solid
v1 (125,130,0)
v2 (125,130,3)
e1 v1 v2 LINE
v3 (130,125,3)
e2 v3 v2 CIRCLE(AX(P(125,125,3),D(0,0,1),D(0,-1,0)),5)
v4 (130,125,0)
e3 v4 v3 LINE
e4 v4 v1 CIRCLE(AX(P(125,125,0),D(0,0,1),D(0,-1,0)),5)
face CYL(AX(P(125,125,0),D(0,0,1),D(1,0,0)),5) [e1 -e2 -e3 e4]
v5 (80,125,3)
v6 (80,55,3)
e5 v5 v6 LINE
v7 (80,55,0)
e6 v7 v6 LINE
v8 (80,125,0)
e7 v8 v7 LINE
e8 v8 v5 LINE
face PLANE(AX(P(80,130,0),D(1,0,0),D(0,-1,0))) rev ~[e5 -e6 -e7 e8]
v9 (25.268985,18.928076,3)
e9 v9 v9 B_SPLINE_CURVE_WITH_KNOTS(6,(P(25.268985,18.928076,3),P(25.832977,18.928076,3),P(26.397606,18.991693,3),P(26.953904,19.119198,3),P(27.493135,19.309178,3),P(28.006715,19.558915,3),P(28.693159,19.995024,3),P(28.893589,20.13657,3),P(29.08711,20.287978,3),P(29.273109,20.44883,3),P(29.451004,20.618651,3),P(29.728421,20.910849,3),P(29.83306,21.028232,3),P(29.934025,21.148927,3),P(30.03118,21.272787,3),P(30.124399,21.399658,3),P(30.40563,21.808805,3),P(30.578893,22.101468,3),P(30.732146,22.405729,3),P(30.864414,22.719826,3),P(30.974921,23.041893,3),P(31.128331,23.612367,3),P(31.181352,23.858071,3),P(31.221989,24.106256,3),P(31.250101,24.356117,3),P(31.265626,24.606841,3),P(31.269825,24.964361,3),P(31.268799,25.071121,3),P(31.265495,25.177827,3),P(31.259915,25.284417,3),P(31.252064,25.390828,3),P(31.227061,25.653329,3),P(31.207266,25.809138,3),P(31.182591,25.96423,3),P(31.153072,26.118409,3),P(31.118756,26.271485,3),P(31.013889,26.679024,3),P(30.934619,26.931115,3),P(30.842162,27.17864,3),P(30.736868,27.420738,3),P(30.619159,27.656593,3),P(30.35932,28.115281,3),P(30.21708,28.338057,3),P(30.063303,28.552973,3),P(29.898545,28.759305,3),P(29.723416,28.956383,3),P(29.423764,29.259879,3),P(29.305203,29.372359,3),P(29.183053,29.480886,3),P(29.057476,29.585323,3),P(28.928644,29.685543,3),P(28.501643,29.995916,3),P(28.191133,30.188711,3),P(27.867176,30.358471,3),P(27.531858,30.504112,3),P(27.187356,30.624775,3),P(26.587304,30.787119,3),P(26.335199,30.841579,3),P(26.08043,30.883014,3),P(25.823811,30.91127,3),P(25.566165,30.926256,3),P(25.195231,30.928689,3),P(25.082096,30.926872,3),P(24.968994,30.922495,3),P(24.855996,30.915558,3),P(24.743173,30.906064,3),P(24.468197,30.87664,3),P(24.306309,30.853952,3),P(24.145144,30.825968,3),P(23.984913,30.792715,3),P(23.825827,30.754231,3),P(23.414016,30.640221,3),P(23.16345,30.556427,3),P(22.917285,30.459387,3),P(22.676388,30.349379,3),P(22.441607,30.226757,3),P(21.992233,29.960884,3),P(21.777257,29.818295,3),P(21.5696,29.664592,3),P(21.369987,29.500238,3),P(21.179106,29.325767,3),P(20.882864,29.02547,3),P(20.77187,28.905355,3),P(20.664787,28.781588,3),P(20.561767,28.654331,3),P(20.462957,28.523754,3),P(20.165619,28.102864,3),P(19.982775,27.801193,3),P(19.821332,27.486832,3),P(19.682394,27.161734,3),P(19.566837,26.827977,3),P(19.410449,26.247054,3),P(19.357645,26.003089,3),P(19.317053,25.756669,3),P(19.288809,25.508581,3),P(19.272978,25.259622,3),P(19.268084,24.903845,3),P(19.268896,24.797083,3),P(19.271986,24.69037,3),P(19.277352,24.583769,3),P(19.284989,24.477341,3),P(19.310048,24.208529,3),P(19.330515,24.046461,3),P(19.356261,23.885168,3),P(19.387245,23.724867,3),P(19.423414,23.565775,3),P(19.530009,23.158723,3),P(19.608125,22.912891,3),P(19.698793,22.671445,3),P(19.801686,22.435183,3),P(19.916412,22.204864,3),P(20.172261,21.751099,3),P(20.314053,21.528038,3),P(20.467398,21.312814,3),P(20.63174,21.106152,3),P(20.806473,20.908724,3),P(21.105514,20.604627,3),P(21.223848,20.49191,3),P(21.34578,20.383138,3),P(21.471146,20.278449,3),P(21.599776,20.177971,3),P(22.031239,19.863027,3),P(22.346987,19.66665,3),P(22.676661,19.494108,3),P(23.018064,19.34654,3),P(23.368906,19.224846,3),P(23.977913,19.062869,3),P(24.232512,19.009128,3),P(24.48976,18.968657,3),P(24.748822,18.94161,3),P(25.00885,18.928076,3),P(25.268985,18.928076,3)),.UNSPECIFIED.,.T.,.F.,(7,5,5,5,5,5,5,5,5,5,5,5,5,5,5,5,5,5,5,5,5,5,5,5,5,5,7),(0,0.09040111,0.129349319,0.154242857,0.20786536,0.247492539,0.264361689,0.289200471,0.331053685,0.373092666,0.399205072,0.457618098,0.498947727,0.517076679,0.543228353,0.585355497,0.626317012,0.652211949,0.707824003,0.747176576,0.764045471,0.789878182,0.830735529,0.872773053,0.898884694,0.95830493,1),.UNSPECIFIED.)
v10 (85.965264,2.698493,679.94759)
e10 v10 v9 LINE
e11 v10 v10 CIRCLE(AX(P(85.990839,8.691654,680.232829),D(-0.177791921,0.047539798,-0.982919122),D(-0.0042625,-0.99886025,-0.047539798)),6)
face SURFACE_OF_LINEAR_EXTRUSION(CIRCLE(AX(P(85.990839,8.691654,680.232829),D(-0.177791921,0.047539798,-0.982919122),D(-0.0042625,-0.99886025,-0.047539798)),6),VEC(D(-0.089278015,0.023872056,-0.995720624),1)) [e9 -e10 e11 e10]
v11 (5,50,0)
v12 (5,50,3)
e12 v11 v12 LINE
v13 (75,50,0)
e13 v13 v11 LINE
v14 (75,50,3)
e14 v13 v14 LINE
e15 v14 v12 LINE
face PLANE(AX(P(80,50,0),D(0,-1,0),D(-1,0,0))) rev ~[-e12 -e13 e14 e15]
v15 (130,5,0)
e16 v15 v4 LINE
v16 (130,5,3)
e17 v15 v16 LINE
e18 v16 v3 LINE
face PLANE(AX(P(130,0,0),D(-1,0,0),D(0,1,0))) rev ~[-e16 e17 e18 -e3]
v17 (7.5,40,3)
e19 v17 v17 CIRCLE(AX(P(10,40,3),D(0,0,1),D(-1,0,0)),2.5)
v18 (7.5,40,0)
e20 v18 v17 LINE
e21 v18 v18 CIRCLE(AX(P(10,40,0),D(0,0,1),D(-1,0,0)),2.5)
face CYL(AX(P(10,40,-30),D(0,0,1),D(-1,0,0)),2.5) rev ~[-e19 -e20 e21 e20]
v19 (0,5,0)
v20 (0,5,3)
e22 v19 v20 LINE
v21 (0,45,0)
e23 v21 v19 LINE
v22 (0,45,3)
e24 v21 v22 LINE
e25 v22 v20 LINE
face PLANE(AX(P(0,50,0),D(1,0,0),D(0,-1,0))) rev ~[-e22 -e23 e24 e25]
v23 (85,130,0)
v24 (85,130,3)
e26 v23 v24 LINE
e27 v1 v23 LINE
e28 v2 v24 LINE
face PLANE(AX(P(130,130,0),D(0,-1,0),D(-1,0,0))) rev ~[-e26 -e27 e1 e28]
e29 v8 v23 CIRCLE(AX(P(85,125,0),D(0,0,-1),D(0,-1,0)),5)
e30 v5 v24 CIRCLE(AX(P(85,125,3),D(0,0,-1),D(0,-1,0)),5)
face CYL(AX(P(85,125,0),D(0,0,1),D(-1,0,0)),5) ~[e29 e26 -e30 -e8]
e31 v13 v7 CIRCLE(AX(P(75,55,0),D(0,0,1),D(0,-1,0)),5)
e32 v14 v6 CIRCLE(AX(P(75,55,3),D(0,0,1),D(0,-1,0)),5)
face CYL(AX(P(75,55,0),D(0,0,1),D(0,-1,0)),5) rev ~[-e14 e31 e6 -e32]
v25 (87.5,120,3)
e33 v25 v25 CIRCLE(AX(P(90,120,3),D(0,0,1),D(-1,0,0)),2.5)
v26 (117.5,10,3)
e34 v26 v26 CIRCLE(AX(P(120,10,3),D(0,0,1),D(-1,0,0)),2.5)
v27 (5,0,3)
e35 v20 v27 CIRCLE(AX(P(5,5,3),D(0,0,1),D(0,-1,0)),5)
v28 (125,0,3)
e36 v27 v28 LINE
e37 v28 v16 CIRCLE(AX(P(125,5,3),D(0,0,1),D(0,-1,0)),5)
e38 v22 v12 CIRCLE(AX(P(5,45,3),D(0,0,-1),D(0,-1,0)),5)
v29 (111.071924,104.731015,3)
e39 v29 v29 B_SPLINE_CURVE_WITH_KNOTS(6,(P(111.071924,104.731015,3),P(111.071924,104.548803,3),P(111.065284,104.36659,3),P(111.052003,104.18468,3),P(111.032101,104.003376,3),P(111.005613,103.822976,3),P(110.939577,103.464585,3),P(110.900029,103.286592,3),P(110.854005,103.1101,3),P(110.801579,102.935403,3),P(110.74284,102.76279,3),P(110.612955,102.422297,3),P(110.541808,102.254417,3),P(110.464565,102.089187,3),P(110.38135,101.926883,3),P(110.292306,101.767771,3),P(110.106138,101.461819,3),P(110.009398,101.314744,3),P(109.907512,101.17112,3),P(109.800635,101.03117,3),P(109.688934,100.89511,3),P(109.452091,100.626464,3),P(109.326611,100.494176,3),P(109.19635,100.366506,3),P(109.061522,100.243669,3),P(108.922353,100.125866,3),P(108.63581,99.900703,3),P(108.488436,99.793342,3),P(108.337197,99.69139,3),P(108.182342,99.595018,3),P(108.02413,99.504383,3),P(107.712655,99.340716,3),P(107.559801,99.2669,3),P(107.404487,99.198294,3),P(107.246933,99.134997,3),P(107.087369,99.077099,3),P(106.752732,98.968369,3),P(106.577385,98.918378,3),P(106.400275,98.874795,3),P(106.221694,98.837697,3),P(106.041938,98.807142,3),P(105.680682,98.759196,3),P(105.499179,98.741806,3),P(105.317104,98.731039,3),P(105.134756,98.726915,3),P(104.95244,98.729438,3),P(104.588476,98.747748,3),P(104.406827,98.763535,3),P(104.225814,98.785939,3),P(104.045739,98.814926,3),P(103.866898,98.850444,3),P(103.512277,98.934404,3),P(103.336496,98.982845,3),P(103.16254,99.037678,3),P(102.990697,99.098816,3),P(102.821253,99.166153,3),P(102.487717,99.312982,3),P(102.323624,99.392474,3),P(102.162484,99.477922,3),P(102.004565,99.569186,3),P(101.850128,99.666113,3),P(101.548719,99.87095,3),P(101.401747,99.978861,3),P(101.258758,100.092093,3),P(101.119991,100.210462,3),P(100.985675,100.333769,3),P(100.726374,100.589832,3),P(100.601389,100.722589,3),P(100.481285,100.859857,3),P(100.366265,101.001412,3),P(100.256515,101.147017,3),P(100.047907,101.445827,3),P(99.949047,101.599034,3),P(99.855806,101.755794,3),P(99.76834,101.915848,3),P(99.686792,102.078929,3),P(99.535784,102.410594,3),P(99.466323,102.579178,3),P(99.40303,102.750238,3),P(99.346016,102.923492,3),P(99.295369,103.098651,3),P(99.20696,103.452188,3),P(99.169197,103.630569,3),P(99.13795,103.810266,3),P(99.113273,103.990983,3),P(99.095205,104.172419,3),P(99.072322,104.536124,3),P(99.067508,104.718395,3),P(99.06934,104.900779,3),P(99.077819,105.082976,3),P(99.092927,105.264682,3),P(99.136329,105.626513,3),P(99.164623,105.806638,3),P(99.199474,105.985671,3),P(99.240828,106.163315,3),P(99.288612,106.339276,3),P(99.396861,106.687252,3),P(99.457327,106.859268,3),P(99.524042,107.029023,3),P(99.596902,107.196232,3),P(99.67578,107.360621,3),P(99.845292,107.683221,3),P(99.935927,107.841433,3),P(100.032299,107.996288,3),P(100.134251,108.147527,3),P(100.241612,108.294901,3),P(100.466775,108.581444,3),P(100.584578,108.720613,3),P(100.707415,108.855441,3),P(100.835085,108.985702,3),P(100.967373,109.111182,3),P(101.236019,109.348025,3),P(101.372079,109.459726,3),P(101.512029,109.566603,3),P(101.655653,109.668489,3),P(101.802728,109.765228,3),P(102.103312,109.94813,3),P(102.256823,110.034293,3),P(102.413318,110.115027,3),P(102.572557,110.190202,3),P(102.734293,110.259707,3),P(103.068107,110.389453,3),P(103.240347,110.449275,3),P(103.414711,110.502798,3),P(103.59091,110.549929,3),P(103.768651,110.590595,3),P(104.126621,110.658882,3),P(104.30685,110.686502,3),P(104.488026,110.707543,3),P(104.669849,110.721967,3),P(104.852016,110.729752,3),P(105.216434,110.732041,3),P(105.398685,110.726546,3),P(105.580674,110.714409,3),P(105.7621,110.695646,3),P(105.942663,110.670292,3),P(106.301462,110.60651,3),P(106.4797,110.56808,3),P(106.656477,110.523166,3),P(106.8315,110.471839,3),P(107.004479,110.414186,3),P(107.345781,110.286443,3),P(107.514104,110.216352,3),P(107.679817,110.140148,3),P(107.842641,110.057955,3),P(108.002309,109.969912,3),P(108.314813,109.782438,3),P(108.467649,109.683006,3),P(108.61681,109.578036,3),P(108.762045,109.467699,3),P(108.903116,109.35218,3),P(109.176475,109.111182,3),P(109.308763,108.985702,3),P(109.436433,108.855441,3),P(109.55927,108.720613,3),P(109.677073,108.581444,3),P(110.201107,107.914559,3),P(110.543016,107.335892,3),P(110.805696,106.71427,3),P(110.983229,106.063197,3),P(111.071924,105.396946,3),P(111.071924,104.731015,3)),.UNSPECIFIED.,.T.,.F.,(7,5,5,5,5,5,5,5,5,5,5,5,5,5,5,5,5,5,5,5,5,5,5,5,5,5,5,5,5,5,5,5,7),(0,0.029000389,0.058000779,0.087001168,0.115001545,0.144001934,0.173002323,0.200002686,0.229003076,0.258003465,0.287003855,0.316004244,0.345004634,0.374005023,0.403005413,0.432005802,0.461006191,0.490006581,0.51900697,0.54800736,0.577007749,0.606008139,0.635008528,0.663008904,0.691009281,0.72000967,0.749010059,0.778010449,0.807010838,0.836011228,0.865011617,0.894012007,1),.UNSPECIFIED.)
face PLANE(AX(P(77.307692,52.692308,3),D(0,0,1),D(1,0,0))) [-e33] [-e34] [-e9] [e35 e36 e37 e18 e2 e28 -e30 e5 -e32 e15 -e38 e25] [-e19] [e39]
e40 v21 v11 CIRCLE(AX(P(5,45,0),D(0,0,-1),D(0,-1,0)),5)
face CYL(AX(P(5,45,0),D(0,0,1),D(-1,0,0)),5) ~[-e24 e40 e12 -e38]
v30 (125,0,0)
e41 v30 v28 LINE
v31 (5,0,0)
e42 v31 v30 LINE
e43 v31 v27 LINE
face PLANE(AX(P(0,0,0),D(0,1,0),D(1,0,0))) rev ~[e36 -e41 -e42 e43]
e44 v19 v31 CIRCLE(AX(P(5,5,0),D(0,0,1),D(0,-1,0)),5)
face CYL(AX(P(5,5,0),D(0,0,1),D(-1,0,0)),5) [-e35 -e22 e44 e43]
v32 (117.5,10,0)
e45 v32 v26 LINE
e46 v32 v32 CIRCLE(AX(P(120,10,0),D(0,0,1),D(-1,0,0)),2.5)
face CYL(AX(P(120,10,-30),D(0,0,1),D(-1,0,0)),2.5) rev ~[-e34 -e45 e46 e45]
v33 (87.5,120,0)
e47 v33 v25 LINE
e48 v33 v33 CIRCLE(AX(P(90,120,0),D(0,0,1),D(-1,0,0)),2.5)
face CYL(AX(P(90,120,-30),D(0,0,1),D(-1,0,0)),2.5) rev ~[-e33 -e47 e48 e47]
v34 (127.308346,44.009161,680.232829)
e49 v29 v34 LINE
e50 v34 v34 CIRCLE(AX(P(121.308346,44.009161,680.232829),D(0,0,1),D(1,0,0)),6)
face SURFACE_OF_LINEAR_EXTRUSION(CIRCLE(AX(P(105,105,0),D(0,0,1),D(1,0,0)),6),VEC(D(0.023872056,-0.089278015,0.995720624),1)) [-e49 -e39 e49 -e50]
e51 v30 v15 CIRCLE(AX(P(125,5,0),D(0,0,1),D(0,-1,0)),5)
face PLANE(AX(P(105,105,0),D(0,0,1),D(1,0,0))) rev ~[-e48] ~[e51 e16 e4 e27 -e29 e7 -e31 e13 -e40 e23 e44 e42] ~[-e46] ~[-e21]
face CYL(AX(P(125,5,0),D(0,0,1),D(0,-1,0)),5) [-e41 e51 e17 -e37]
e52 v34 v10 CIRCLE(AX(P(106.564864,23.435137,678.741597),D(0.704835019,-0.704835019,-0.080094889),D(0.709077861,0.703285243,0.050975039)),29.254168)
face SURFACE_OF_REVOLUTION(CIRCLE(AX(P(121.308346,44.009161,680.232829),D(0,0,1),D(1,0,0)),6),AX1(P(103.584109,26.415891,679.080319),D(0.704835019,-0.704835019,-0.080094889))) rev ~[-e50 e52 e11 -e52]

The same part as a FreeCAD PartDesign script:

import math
import FreeCAD as App
import Part
import Sketcher


def edges_at(feature, points):
    """Names of the edges that pass closest to the given points."""
    edges = feature.Shape.Edges
    near = lambda p: min(range(len(edges)), key=lambda i: edges[i].distToShape(Part.Vertex(*p))[0])
    return sorted({f"Edge{near(p) + 1}" for p in points})


def add_polygon(sketch, points):
    """Adds a closed chain of lines whose ends are joined by coincident constraints."""
    first, n = sketch.GeometryCount, len(points)
    for a, b in zip(points, points[1:] + points[:1]):
        sketch.addGeometry(Part.LineSegment(App.Vector(*a, 0), App.Vector(*b, 0)), False)
    for i in range(n):
        sketch.addConstraint(Sketcher.Constraint("Coincident", first + i, 2, first + (i + 1) % n, 1))

doc = App.newDocument("Part")
params = doc.addObject("Spreadsheet::Sheet", "Params")
for row, (alias, value) in enumerate([
    ("sketch1_width", "130 mm"),
    ("sketch1_width2", "50 mm"),
    ("pad1_length", "3 mm"),
    ("sketch2_diameter", "12 mm"),
    ("sketch3_radius", "25 mm"),
    ("sketch4_width", "130 mm"),
    ("sketch4_height", "10 mm"),
    ("sketch5_diameter", "5 mm"),
    ("hole_diameter", "5 mm"),
    ("hole_depth", "30 mm"),
    ("fillet_radius", "5 mm"),
], start=1):
    params.set(f"A{row}", alias)
    params.set(f"B{row}", "=" + value)
    params.setAlias(f"B{row}", alias)

body = doc.addObject("PartDesign::Body", "Body")

sketch1 = doc.addObject("Sketcher::SketchObject", "Sketch")
body.addObject(sketch1)
sketch1.AttachmentSupport = (doc.XY_Plane, [""])
sketch1.MapMode = "FlatFace"
add_polygon(sketch1, [(0, 50), (0, 0), (130, 0), (130, 130), (80, 130), (80, 50)])
sketch1.addConstraint([
    Sketcher.Constraint("Vertical", 0),
    Sketcher.Constraint("Horizontal", 1),
    Sketcher.Constraint("Vertical", 2),
    Sketcher.Constraint("Horizontal", 3),
    Sketcher.Constraint("Vertical", 4),
    Sketcher.Constraint("Horizontal", 5),
    Sketcher.Constraint("Coincident", 0, 2, -1, 1),
    Sketcher.Constraint("Equal", 3, 0),
    Sketcher.Constraint("Equal", 1, 2),
    Sketcher.Constraint("DistanceX", 1, 1, 1, 2, 130.0),
    Sketcher.Constraint("DistanceX", 3, 2, 3, 1, 50.0),
])
sketch1.setExpression("Constraints[15]", "Params.sketch1_width")
sketch1.setExpression("Constraints[16]", "Params.sketch1_width2")
pad1 = doc.addObject("PartDesign::Pad", "Pad")
body.addObject(pad1)
pad1.Profile = sketch1
pad1.setExpression("Length", "Params.pad1_length")

sketch2 = doc.addObject("Sketcher::SketchObject", "Sketch001")
body.addObject(sketch2)
sketch2.AttachmentSupport = (doc.XY_Plane, [""])
sketch2.MapMode = "FlatFace"
sketch2.addGeometry(Part.Circle(App.Vector(105, 105, 0), App.Vector(0, 0, 1), 6), False)
sketch2.addConstraint([
    Sketcher.Constraint("Diameter", 0, 12.0),
    Sketcher.Constraint("DistanceX", -1, 1, 0, 3, 105.0),
    Sketcher.Constraint("DistanceY", -1, 1, 0, 3, 105.0),
])
sketch2.setExpression("Constraints[0]", "Params.sketch2_diameter")

sketch3 = doc.addObject("Sketcher::SketchObject", "Sketch002")
body.addObject(sketch3)
sketch3.Placement = App.Placement(App.Vector(0, 0, 0), App.Rotation(App.Vector(-0.707106781, -0.707106781, 0), App.Vector(0.056635639, -0.056635639, 0.996787243), App.Vector(-0.704835019, 0.704835019, 0.080094889), "ZXY"))
sketch3.addGeometry([
    Part.LineSegment(App.Vector(-148.492424, 0, 0), App.Vector(-116.89713, 682.425295, 0)),
    Part.ArcOfCircle(Part.Circle(App.Vector(-91.923882, 681.26907, 0), App.Vector(0, 0, 1), 25), math.radians(2.650818), math.radians(177.349182)),
    Part.LineSegment(App.Vector(-66.950633, 682.425295, 0), App.Vector(-35.355339, 0, 0)),
], False)
sketch3.addConstraint([
    Sketcher.Constraint("Tangent", 0, 2, 1, 2),
    Sketcher.Constraint("Tangent", 1, 1, 2, 1),
    Sketcher.Constraint("PointOnObject", 0, 1, -1),
    Sketcher.Constraint("PointOnObject", 2, 2, -1),
    Sketcher.Constraint("Horizontal", 0, 2, 1, 1),
    Sketcher.Constraint("Radius", 1, 25.0),
    Sketcher.Constraint("Distance", 0, 683.156311),
    Sketcher.Constraint("DistanceX", 1, 3, -1, 1, 91.923882),
    Sketcher.Constraint("DistanceY", -1, 1, 1, 3, 681.26907),
])
sketch3.setExpression("Constraints[5]", "Params.sketch3_radius")
doc.recompute()

additivepipe = doc.addObject("PartDesign::AdditivePipe", "AdditivePipe")
body.addObject(additivepipe)
additivepipe.Profile = sketch2
additivepipe.Spine = (sketch3, ["Edge1", "Edge2", "Edge3"])

sketch4 = doc.addObject("Sketcher::SketchObject", "Sketch003")
body.addObject(sketch4)
sketch4.AttachmentSupport = (doc.XZ_Plane, [""])
sketch4.MapMode = "FlatFace"
add_polygon(sketch4, [(0, 0), (0, -10), (130, -10), (130, 0)])
sketch4.addConstraint([
    Sketcher.Constraint("Vertical", 0),
    Sketcher.Constraint("Horizontal", 1),
    Sketcher.Constraint("Vertical", 2),
    Sketcher.Constraint("Horizontal", 3),
    Sketcher.Constraint("Coincident", 3, 2, -1, 1),
    Sketcher.Constraint("DistanceX", 1, 1, 1, 2, 130.0),
    Sketcher.Constraint("DistanceY", 0, 2, 0, 1, 10.0),
])
sketch4.setExpression("Constraints[9]", "Params.sketch4_width")
sketch4.setExpression("Constraints[10]", "Params.sketch4_height")
pocket1 = doc.addObject("PartDesign::Pocket", "Pocket")
body.addObject(pocket1)
pocket1.Profile = sketch4
pocket1.Type = "ThroughAll"

sketch5 = doc.addObject("Sketcher::SketchObject", "Sketch004")
body.addObject(sketch5)
sketch5.AttachmentSupport = (doc.XY_Plane, [""])
sketch5.MapMode = "FlatFace"
sketch5.addGeometry([
    Part.Circle(App.Vector(90, 120, 0), App.Vector(0, 0, 1), 2.5),
    Part.Circle(App.Vector(120, 10, 0), App.Vector(0, 0, 1), 2.5),
    Part.Circle(App.Vector(10, 40, 0), App.Vector(0, 0, 1), 2.5),
], False)
sketch5.addConstraint([
    Sketcher.Constraint("Equal", 0, 1),
    Sketcher.Constraint("Equal", 1, 2),
    Sketcher.Constraint("Diameter", 0, 5.0),
    Sketcher.Constraint("DistanceX", -1, 1, 0, 3, 90.0),
    Sketcher.Constraint("DistanceY", -1, 1, 0, 3, 120.0),
    Sketcher.Constraint("DistanceX", -1, 1, 1, 3, 120.0),
    Sketcher.Constraint("DistanceY", -1, 1, 1, 3, 10.0),
    Sketcher.Constraint("DistanceX", -1, 1, 2, 3, 10.0),
    Sketcher.Constraint("DistanceY", -1, 1, 2, 3, 40.0),
])
sketch5.setExpression("Constraints[2]", "Params.sketch5_diameter")
doc.recompute()
hole = doc.addObject("PartDesign::Hole", "Hole")
body.addObject(hole)
hole.Profile = sketch5
hole.ThreadType = "None"
hole.setExpression("Diameter", "Params.hole_diameter")
hole.DepthType = "Dimension"
hole.setExpression("Depth", "Params.hole_depth")
hole.DrillPoint = "Angled"
hole.DrillPointAngle = 118
hole.Reversed = True
doc.recompute()

fillet = doc.addObject("PartDesign::Fillet", "Fillet")
body.addObject(fillet)
fillet.Base = (hole, edges_at(hole, [
    (130, 130, 1.5),
    (80, 130, 1.5),
    (80, 50, 1.5),
    (0, 50, 1.5),
    (0, 0, 1.5),
    (130, 0, 1.5),
]))
fillet.setExpression("Radius", "Params.fillet_radius")

doc.recompute()
